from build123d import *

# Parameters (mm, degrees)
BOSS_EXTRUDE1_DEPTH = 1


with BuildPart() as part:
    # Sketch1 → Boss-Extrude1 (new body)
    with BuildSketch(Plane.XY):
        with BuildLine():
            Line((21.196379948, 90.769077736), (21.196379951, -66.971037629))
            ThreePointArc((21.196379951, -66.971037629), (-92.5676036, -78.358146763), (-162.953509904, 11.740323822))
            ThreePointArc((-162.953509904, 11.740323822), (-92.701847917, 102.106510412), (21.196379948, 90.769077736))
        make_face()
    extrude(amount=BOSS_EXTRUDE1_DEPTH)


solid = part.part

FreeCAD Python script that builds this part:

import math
import FreeCAD as App
import Part
import Sketcher

V = App.Vector

doc = App.newDocument("Part")
params = doc.addObject("Spreadsheet::Sheet", "Params")
for row, (alias, value) in enumerate([
    ("pad1_length", "1 mm"),
], start=1):
    params.set(f"A{row}", alias)
    params.set(f"B{row}", "=" + value)
    params.setAlias(f"B{row}", alias)

body = doc.addObject("PartDesign::Body", "Body")

# Sketch on XY plane
sketch1 = body.newObject("Sketcher::SketchObject", "Sketch")
sketch1.AttachmentSupport = (doc.getObject("XY_Plane"), [""])
sketch1.MapMode = "FlatFace"
sketch1.addGeometry([
    Part.LineSegment(V(21.19638, -66.971038, 0), V(21.19638, 90.769078, 0)),
    Part.ArcOfCircle(Part.Circle(V(-46.016808, -6.677249, 0), V(0, 0, 1), 118.378204), math.radians(55.404195), math.radians(171.049421)),
    Part.ArcOfCircle(Part.Circle(V(-46.016808, 30.550195, 0), V(0, 0, 1), 118.439873), math.radians(-170.861956), math.radians(-55.424769)),
], False)
sketch1.addConstraint([
    Sketcher.Constraint("Coincident", 0, 2, 1, 1),
    Sketcher.Constraint("Coincident", 1, 2, 2, 1),
    Sketcher.Constraint("Coincident", 2, 2, 0, 1),
    Sketcher.Constraint("Vertical", 0),
    Sketcher.Constraint("Vertical", 1, 3, 2, 3),
    Sketcher.Constraint("Radius", 1, 118.378204),
    Sketcher.Constraint("Radius", 2, 118.439873),
    Sketcher.Constraint("DistanceX", 1, 2, 1, 3, 116.936702),
    Sketcher.Constraint("DistanceY", 0, 1, 0, 2, 157.740115),
    Sketcher.Constraint("DistanceX", 1, 3, -1, 1, 46.016808),
    Sketcher.Constraint("DistanceY", 1, 3, -1, 1, 6.677249),
])
pad1 = body.newObject("PartDesign::Pad", "Pad")
pad1.Profile = sketch1
pad1.setExpression("Length", "Params.pad1_length")

doc.recompute()
